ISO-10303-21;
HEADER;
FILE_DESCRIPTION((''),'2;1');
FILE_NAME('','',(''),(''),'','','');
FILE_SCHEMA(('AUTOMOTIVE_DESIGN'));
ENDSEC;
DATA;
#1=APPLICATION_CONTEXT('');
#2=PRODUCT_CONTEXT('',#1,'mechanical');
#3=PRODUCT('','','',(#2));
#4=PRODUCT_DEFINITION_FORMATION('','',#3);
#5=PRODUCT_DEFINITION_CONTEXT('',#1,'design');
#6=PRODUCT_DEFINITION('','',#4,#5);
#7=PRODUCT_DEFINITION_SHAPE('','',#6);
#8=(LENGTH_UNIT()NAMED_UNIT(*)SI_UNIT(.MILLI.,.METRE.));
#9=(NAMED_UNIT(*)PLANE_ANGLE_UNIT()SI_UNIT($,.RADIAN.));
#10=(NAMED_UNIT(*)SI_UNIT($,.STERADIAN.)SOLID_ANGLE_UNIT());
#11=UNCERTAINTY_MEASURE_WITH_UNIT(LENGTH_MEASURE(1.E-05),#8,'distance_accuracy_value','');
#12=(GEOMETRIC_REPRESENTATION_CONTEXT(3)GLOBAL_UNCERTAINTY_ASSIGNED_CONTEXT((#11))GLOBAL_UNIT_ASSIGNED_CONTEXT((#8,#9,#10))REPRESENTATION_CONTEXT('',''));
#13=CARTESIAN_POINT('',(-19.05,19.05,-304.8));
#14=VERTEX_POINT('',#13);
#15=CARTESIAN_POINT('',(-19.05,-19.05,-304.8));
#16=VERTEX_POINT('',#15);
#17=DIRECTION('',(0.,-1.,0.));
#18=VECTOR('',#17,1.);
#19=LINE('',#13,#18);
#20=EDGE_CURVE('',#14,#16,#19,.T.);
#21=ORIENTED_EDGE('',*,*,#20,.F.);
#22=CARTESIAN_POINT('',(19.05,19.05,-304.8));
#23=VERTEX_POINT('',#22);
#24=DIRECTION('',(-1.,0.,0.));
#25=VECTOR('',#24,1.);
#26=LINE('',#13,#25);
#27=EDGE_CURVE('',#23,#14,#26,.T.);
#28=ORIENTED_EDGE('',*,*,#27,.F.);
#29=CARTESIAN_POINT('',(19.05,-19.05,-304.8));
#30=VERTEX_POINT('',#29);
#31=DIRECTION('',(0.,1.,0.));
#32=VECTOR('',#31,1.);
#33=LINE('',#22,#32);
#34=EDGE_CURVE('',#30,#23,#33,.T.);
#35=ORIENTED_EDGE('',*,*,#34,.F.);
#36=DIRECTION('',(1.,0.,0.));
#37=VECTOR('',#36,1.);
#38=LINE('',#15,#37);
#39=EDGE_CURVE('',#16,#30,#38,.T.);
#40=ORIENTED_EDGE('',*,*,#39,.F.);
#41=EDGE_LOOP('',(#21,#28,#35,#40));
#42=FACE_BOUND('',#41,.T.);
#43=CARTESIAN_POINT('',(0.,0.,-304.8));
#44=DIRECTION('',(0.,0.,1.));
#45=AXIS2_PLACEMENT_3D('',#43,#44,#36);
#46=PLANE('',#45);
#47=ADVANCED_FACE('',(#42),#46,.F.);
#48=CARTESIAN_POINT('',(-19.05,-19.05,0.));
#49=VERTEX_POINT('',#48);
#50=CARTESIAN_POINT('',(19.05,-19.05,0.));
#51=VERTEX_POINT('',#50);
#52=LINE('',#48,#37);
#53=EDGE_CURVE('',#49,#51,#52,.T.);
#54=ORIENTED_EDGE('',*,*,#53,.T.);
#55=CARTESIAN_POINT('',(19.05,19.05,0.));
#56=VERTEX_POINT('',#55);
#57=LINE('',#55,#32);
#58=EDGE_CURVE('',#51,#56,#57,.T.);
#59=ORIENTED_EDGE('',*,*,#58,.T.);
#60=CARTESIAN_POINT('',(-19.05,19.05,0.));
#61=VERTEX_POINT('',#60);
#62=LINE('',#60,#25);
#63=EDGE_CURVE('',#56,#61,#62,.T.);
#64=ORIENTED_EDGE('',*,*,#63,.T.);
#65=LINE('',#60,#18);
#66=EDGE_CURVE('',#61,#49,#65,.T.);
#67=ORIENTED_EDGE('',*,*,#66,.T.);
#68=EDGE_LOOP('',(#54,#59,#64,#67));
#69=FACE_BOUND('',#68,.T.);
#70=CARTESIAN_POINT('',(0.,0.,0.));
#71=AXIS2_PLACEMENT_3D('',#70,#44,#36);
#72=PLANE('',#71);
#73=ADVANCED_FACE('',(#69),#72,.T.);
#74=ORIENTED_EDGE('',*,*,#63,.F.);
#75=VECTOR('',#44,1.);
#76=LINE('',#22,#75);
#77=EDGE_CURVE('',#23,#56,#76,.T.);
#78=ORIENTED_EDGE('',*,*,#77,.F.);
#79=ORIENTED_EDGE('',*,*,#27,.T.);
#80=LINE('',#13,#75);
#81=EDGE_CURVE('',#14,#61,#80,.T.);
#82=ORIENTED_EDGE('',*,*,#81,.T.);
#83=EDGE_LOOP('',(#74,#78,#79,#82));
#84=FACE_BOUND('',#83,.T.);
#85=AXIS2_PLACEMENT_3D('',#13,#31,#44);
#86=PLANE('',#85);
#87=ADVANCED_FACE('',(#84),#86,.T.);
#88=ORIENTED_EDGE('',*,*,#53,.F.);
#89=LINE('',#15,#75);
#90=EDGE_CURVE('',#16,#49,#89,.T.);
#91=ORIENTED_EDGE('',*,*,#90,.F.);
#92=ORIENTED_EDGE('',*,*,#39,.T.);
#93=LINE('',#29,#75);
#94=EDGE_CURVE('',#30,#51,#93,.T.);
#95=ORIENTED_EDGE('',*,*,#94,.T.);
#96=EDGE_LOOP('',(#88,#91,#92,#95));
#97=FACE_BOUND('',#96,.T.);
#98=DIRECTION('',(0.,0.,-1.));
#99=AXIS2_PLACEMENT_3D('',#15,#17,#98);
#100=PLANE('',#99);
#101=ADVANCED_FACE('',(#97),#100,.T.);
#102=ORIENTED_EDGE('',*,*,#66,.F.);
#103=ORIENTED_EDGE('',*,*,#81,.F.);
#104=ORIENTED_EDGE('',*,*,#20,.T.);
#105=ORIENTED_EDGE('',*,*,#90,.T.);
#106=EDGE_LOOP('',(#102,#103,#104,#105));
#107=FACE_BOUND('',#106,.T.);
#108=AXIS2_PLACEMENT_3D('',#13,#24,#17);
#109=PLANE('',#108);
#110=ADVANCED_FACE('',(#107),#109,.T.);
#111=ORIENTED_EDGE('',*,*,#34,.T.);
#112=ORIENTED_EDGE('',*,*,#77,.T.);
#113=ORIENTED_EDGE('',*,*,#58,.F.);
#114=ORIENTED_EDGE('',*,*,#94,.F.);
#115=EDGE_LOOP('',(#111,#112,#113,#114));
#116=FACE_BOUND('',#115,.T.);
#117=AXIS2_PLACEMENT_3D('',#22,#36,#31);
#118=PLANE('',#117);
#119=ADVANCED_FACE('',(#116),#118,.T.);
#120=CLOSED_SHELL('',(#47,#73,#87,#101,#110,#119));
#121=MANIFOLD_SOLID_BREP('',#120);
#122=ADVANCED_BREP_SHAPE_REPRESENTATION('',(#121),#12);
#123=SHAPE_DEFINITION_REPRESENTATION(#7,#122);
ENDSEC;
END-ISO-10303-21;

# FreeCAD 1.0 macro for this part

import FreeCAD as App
import Part
import Sketcher
Q = App.Units.Quantity


def add_polygon(sketch, points):
    """Adds a closed chain of lines whose ends are joined by coincident constraints."""
    first, n = sketch.GeometryCount, len(points)
    for a, b in zip(points, points[1:] + points[:1]):
        sketch.addGeometry(Part.LineSegment(App.Vector(*a, 0), App.Vector(*b, 0)), False)
    for i in range(n):
        sketch.addConstraint(Sketcher.Constraint("Coincident", first + i, 2, first + (i + 1) % n, 1))

doc = App.newDocument("Part")
body = doc.addObject("PartDesign::Body", "Body")

# Sketch on XY plane
sketch1 = body.newObject("Sketcher::SketchObject", "Sketch")
sketch1.AttachmentSupport = (doc.getObject("XY_Plane"), [""])
sketch1.MapMode = "FlatFace"
add_polygon(sketch1, [(-19, 19), (-19, -19), (19, -19), (19, 19)])  # lines 0-3
sketch1.addConstraint(Sketcher.Constraint("Vertical", 0))
sketch1.addConstraint(Sketcher.Constraint("Horizontal", 1))
sketch1.addConstraint(Sketcher.Constraint("Vertical", 2))
sketch1.addConstraint(Sketcher.Constraint("Horizontal", 3))
sketch1.addConstraint(Sketcher.Constraint("Symmetric", 0, 2, 2, 2, -1, 1))
sketch1.addConstraint(Sketcher.Constraint("Equal", 3, 0))
sketch1.addConstraint(Sketcher.Constraint("DistanceX", 1, 1, 1, 2, Q("1.5 in")))
pad1 = body.newObject("PartDesign::Pad", "Pad")
pad1.Profile = sketch1
pad1.Length = Q("12 in")
pad1.Reversed = True

doc.recompute()
